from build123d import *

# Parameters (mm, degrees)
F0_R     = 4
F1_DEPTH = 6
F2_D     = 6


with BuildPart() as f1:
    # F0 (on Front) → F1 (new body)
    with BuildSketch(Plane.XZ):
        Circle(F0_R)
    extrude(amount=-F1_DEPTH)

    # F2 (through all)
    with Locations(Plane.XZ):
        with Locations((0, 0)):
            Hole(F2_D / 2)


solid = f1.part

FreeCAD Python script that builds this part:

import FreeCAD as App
import Part
import Sketcher
from FreeCAD import Vector

doc = App.newDocument("Part")
params = doc.addObject("Spreadsheet::Sheet", "Params")
for row, (alias, value) in enumerate([
    ("sketch1_diameter", "8 mm"),
    ("pad1_length", "6 mm"),
    ("sketch2_diameter", "6 mm"),
    ("hole_diameter", "6 mm"),
], start=1):
    params.set(f"A{row}", alias)
    params.set(f"B{row}", "=" + value)
    params.setAlias(f"B{row}", alias)

body = doc.addObject("PartDesign::Body", "Body")

# Sketch on XZ plane
sketch1 = doc.addObject("Sketcher::SketchObject", "Sketch")
body.addObject(sketch1)
sketch1.AttachmentSupport = (doc.XZ_Plane, [""])
sketch1.MapMode = "FlatFace"
sketch1.addGeometry(Part.Circle(Vector(0, 0, 0), Vector(0, 0, 1), 4), False)
sketch1.addConstraint([
    Sketcher.Constraint("Coincident", 0, 3, -1, 1),
    Sketcher.Constraint("Diameter", 0, 8.0),
])
sketch1.setExpression("Constraints[1]", "Params.sketch1_diameter")
pad1 = doc.addObject("PartDesign::Pad", "Pad")
body.addObject(pad1)
pad1.Profile = sketch1
pad1.setExpression("Length", "Params.pad1_length")
pad1.Reversed = True

# Sketch on XZ plane
sketch2 = doc.addObject("Sketcher::SketchObject", "Sketch001")
body.addObject(sketch2)
sketch2.AttachmentSupport = (doc.XZ_Plane, [""])
sketch2.MapMode = "FlatFace"
sketch2.addGeometry(Part.Circle(Vector(0, 0, 0), Vector(0, 0, 1), 3), False)
sketch2.addConstraint([
    Sketcher.Constraint("Coincident", 0, 3, -1, 1),
    Sketcher.Constraint("Diameter", 0, 6.0),
])
sketch2.setExpression("Constraints[1]", "Params.sketch2_diameter")
doc.recompute()
hole = doc.addObject("PartDesign::Hole", "Hole")
body.addObject(hole)
hole.Profile = sketch2
hole.ThreadType = "None"
hole.setExpression("Diameter", "Params.hole_diameter")
hole.DepthType = "ThroughAll"

doc.recompute()
